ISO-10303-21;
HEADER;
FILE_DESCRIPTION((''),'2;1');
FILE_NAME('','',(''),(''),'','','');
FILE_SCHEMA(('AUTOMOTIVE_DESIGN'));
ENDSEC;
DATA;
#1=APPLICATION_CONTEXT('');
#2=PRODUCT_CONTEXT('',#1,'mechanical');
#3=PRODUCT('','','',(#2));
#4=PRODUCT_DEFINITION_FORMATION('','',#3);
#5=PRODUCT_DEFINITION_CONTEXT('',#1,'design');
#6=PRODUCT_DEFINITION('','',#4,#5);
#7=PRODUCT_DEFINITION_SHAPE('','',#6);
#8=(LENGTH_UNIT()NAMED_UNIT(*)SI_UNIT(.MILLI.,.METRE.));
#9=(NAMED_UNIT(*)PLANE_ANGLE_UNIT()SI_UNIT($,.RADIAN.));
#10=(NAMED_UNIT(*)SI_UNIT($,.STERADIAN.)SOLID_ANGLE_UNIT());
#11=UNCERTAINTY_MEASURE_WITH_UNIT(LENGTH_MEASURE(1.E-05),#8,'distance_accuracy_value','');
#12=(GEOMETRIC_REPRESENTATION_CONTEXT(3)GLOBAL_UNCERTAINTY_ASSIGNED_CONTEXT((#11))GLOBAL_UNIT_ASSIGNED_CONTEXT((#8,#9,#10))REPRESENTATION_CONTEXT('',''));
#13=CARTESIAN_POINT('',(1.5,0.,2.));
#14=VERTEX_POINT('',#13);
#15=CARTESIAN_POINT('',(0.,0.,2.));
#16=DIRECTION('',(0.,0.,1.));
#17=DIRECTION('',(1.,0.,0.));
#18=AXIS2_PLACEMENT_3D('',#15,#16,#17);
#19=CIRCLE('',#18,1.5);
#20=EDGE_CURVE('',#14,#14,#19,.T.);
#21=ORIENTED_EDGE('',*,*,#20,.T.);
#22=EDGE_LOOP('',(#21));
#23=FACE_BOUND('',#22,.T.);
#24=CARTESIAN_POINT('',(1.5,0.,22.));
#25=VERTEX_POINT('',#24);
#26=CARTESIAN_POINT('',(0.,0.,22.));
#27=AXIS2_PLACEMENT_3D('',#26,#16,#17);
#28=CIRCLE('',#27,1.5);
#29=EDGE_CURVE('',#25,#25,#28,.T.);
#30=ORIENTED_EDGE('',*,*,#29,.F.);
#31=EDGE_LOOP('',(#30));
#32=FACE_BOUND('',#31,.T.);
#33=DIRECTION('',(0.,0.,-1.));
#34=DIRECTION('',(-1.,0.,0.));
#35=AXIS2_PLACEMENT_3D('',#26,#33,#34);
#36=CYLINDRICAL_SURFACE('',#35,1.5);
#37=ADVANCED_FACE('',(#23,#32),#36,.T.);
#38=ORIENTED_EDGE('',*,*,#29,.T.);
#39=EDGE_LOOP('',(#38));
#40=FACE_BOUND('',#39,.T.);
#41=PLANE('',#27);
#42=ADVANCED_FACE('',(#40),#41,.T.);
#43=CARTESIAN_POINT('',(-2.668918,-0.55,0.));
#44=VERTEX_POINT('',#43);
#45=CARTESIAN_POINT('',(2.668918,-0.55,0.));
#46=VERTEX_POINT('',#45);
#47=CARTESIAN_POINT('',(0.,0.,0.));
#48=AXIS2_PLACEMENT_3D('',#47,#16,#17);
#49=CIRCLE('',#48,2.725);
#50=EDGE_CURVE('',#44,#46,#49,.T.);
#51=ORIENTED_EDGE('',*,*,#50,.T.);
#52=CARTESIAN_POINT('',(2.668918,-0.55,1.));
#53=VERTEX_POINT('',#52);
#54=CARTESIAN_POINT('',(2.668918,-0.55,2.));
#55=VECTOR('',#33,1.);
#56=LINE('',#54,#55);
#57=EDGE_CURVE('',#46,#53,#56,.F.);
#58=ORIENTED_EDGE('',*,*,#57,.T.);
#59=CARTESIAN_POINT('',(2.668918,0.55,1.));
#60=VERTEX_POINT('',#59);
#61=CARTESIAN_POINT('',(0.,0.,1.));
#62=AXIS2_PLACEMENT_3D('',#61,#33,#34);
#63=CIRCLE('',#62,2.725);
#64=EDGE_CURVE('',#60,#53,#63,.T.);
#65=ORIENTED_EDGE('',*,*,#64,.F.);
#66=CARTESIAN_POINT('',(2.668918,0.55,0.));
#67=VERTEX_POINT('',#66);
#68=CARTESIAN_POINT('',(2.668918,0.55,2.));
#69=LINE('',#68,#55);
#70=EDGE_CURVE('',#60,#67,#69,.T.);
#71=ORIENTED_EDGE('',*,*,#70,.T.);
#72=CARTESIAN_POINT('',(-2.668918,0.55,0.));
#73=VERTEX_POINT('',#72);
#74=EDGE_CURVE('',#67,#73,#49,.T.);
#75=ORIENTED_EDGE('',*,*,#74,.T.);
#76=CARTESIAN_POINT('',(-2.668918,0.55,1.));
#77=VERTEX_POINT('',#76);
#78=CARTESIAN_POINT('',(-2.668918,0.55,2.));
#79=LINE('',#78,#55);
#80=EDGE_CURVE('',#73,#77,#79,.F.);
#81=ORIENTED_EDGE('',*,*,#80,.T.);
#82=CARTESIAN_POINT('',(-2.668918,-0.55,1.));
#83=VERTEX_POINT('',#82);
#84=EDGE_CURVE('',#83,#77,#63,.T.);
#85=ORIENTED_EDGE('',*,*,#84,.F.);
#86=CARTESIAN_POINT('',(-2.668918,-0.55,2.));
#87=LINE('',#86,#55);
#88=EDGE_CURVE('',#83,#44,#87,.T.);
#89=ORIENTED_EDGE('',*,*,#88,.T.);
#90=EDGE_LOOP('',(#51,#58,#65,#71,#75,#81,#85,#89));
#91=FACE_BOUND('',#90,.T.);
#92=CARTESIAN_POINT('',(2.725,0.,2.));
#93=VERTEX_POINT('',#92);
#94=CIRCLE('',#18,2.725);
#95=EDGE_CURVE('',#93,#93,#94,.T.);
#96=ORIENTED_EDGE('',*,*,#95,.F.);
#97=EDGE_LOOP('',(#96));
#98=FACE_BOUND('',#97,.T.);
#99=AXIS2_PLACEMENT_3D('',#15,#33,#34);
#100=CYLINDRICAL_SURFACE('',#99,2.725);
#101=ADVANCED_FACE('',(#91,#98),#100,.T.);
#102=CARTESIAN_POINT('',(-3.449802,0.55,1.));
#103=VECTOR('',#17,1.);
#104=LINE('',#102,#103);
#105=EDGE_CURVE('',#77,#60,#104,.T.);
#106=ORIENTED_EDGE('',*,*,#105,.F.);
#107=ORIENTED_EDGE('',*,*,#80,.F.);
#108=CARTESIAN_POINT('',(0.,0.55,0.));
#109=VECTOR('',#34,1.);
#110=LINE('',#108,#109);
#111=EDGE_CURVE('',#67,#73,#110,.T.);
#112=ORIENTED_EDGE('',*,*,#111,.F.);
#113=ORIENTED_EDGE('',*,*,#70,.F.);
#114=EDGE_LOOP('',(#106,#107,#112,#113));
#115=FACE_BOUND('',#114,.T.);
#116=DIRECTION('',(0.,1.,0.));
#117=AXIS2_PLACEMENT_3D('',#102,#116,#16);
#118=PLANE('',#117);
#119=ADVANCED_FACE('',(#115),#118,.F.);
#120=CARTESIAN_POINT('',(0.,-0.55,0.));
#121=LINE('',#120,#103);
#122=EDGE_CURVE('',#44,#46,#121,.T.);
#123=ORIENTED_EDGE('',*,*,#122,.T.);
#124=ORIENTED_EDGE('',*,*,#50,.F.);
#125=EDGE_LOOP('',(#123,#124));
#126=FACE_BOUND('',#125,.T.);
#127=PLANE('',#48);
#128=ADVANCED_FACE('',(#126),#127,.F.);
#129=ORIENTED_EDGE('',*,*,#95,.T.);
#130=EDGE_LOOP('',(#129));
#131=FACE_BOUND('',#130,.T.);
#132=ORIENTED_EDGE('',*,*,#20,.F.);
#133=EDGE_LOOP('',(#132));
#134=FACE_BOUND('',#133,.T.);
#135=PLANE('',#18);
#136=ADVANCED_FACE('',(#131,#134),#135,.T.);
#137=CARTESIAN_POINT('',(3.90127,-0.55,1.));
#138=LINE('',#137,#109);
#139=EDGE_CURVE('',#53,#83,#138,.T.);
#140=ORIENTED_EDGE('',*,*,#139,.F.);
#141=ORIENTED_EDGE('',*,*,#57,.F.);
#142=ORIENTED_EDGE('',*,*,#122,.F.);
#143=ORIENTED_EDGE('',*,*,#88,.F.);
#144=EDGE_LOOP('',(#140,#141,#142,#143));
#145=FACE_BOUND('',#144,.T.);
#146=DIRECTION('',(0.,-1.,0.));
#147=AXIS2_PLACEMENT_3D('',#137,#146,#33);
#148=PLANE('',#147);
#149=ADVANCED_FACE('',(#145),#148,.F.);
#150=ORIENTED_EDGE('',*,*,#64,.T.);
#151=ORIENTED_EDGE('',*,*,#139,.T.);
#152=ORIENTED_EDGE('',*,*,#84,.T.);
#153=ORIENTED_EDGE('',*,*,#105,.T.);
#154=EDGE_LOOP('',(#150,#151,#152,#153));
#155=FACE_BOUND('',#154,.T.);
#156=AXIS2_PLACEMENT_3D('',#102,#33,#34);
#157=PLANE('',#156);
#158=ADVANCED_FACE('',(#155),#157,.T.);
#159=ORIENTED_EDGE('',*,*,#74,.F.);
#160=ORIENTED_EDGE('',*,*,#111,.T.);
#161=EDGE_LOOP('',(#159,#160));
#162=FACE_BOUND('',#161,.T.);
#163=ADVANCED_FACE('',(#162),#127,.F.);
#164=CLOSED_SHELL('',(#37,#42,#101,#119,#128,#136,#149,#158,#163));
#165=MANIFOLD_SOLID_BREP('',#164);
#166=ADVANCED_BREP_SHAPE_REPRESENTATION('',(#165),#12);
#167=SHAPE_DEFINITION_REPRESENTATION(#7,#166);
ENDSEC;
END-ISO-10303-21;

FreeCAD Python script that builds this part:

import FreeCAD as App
import Part
import Sketcher
Q = App.Units.Quantity


def add_polygon(sketch, points):
    """Adds a closed chain of lines whose ends are joined by coincident constraints."""
    first, n = sketch.GeometryCount, len(points)
    for a, b in zip(points, points[1:] + points[:1]):
        sketch.addGeometry(Part.LineSegment(App.Vector(*a, 0), App.Vector(*b, 0)), False)
    for i in range(n):
        sketch.addConstraint(Sketcher.Constraint("Coincident", first + i, 2, first + (i + 1) % n, 1))

doc = App.newDocument("Part")
body = doc.addObject("PartDesign::Body", "Body")

# Sketch on XY plane
sketch1 = body.newObject("Sketcher::SketchObject", "Sketch")
sketch1.AttachmentSupport = (doc.getObject("XY_Plane"), [""])
sketch1.MapMode = "FlatFace"
sketch1.addGeometry(Part.Circle(App.Vector(0, 0, 0), App.Vector(0, 0, 1), 2.7), False)
sketch1.addConstraint([
    Sketcher.Constraint("Coincident", 0, 3, -1, 1),
    Sketcher.Constraint("Diameter", 0, Q("5.45 mm")),
])
pad1 = body.newObject("PartDesign::Pad", "Pad")
pad1.Profile = sketch1
pad1.Length = 2

# Sketch on XY plane
sketch2 = body.newObject("Sketcher::SketchObject", "Sketch001")
sketch2.AttachmentSupport = (doc.getObject("XY_Plane"), [""])
sketch2.MapMode = "FlatFace"
add_polygon(sketch2, [(-3.4, 0.6), (3.9, 0.6), (3.9, -0.6), (-3.4, -0.6)])  # lines 0-3
sketch2.addConstraint([
    Sketcher.Constraint("Horizontal", 0),
    Sketcher.Constraint("Vertical", 1),
    Sketcher.Constraint("Horizontal", 2),
    Sketcher.Constraint("Vertical", 3),
    Sketcher.Constraint("DistanceY", 1, 2, 1, 1, Q("1.1 mm")),
    Sketcher.Constraint("DistanceY", -1, 1, 0, 2, Q("0.55 mm")),
    Sketcher.Constraint("DistanceX", 0, 1, 0, 2, Q("7.351071 mm")),
    Sketcher.Constraint("DistanceX", 2, 2, -1, 1, Q("3.449802 mm")),
])
pocket1 = body.newObject("PartDesign::Pocket", "Pocket")
pocket1.Profile = sketch2
pocket1.Length = 1
pocket1.Reversed = True

# Sketch on XY plane
sketch3 = body.newObject("Sketcher::SketchObject", "Sketch002")
sketch3.AttachmentSupport = (doc.getObject("XY_Plane"), [""])
sketch3.MapMode = "FlatFace"
sketch3.AttachmentOffset = App.Placement(App.Vector(0, 0, 2), App.Rotation())
sketch3.addGeometry(Part.Circle(App.Vector(0, 0, 0), App.Vector(0, 0, 1), 1.5), False)
sketch3.addConstraint([
    Sketcher.Constraint("Coincident", 0, 3, -1, 1),
    Sketcher.Constraint("Diameter", 0, Q("3 mm")),
])
pad2 = body.newObject("PartDesign::Pad", "Pad001")
pad2.Profile = sketch3
pad2.Length = 20

doc.recompute()
